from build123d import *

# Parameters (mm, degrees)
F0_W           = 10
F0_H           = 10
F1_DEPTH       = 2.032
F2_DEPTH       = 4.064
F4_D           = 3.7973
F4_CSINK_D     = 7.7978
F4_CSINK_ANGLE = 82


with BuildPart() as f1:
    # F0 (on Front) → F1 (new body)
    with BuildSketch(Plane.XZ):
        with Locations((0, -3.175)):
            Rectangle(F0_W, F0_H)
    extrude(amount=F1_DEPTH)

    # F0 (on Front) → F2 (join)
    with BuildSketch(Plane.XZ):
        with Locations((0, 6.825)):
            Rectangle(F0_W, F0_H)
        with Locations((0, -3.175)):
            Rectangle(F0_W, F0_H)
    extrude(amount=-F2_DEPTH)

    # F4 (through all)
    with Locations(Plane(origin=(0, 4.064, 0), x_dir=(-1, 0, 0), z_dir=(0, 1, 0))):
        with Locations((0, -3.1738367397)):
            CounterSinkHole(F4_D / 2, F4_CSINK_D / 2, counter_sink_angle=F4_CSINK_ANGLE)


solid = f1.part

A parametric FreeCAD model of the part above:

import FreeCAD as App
import Part
import Sketcher

V = App.Vector
Q = App.Units.Quantity


def add_polygon(sketch, points):
    """Adds a closed chain of lines whose ends are joined by coincident constraints."""
    first, n = sketch.GeometryCount, len(points)
    for a, b in zip(points, points[1:] + points[:1]):
        sketch.addGeometry(Part.LineSegment(App.Vector(*a, 0), App.Vector(*b, 0)), False)
    for i in range(n):
        sketch.addConstraint(Sketcher.Constraint("Coincident", first + i, 2, first + (i + 1) % n, 1))

doc = App.newDocument("Part")
body = doc.addObject("PartDesign::Body", "Body")

sketch1 = body.newObject("Sketcher::SketchObject", "Sketch")
sketch1.AttachmentSupport = (doc.getObject("XZ_Plane"), [""])
sketch1.MapMode = "FlatFace"
add_polygon(sketch1, [(-5, 2), (-5, -8), (5, -8), (5, 2)])
sketch1.addConstraint([
    Sketcher.Constraint("Vertical", 0),
    Sketcher.Constraint("Horizontal", 1),
    Sketcher.Constraint("Vertical", 2),
    Sketcher.Constraint("Horizontal", 3),
    Sketcher.Constraint("Equal", 3, 0),
    Sketcher.Constraint("DistanceX", 1, 1, 1, 2, Q("10 mm")),
    Sketcher.Constraint("DistanceX", 0, 2, -1, 1, Q("5 mm")),
    Sketcher.Constraint("DistanceY", 0, 2, -1, 1, Q("8.175 mm")),
])
pad1 = body.newObject("PartDesign::Pad", "Pad")
pad1.Profile = sketch1
pad1.Length = 2.032

sketch2 = body.newObject("Sketcher::SketchObject", "Sketch001")
sketch2.AttachmentSupport = (doc.getObject("XZ_Plane"), [""])
sketch2.MapMode = "FlatFace"
add_polygon(sketch2, [(-5, 12), (-5, -8), (5, -8), (5, 12)])
sketch2.addConstraint([
    Sketcher.Constraint("Vertical", 0),
    Sketcher.Constraint("Horizontal", 1),
    Sketcher.Constraint("Vertical", 2),
    Sketcher.Constraint("Horizontal", 3),
    Sketcher.Constraint("DistanceX", 1, 1, 1, 2, Q("10 mm")),
    Sketcher.Constraint("DistanceY", 0, 2, 0, 1, Q("20 mm")),
    Sketcher.Constraint("DistanceX", 0, 2, -1, 1, Q("5 mm")),
    Sketcher.Constraint("DistanceY", 0, 2, -1, 1, Q("8.175 mm")),
])
pad2 = body.newObject("PartDesign::Pad", "Pad001")
pad2.Profile = sketch2
pad2.Length = 4.064
pad2.Reversed = True

sketch3 = body.newObject("Sketcher::SketchObject", "Sketch002")
sketch3.AttachmentSupport = (doc.getObject("XZ_Plane"), [""])
sketch3.MapMode = "FlatFace"
sketch3.AttachmentOffset = App.Placement(V(0, 0, -4.064), App.Rotation())
sketch3.addGeometry(Part.Circle(V(0, -3.2, 0), V(0, 0, 1), 1.9), False)
sketch3.addConstraint([
    Sketcher.Constraint("PointOnObject", 0, 3, -2),
    Sketcher.Constraint("Diameter", 0, Q("3.7973 mm")),
    Sketcher.Constraint("DistanceY", 0, 3, -1, 1, Q("3.173837 mm")),
])
doc.recompute()
hole = body.newObject("PartDesign::Hole", "Hole")
hole.Profile = sketch3
hole.ThreadType = "None"
hole.Diameter = 3.7973
hole.DepthType = "ThroughAll"
hole.HoleCutType = "Countersink"
hole.HoleCutDiameter = 7.7978
hole.HoleCutCountersinkAngle = 82
hole.Reversed = True

doc.recompute()
